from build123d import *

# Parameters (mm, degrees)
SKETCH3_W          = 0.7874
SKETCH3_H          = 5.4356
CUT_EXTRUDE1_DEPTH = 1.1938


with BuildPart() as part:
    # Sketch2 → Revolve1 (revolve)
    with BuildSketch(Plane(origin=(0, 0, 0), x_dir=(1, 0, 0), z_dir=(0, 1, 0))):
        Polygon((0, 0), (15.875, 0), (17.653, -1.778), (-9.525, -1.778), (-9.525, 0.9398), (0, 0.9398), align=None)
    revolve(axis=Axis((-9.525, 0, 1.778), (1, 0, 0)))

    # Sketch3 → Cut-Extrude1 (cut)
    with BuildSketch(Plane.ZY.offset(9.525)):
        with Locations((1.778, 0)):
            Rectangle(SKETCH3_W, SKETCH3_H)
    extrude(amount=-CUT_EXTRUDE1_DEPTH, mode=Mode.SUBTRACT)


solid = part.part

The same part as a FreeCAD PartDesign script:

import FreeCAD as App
import Part
import Sketcher
Q = App.Units.Quantity

doc = App.newDocument("Part")
body = doc.addObject("PartDesign::Body", "Body")

# Sketch on XZ plane
sketch1 = body.newObject("Sketcher::SketchObject", "Sketch")
sketch1.AttachmentSupport = (doc.getObject("XZ_Plane"), [""])
sketch1.MapMode = "FlatFace"
sketch1.addGeometry(Part.LineSegment(App.Vector(15.9, 0, 0), App.Vector(0, 0, 0)), False)
sketch1.addGeometry(Part.LineSegment(App.Vector(0, 0, 0), App.Vector(0, -0.9, 0)), False)
sketch1.addGeometry(Part.LineSegment(App.Vector(0, -0.9, 0), App.Vector(-9.5, -0.9, 0)), False)
sketch1.addGeometry(Part.LineSegment(App.Vector(-9.5, -0.9, 0), App.Vector(-9.5, 1.8, 0)), False)
sketch1.addGeometry(Part.LineSegment(App.Vector(-9.5, 1.8, 0), App.Vector(17.7, 1.8, 0)), False)
sketch1.addGeometry(Part.LineSegment(App.Vector(17.7, 1.8, 0), App.Vector(15.9, 0, 0)), False)
sketch1.addGeometry(Part.LineSegment(App.Vector(-9.5, 1.8, 0), App.Vector(17.7, 1.8, 0)), True)  # axis
sketch1.addConstraint(Sketcher.Constraint("Coincident", 0, 2, 1, 1))
sketch1.addConstraint(Sketcher.Constraint("Coincident", 1, 2, 2, 1))
sketch1.addConstraint(Sketcher.Constraint("Coincident", 2, 2, 3, 1))
sketch1.addConstraint(Sketcher.Constraint("Coincident", 3, 2, 4, 1))
sketch1.addConstraint(Sketcher.Constraint("Coincident", 4, 2, 5, 1))
sketch1.addConstraint(Sketcher.Constraint("Coincident", 5, 2, 0, 1))
sketch1.addConstraint(Sketcher.Constraint("Horizontal", 0))
sketch1.addConstraint(Sketcher.Constraint("Vertical", 1))
sketch1.addConstraint(Sketcher.Constraint("Horizontal", 2))
sketch1.addConstraint(Sketcher.Constraint("Vertical", 3))
sketch1.addConstraint(Sketcher.Constraint("Horizontal", 4))
sketch1.addConstraint(Sketcher.Constraint("Horizontal", 6))
sketch1.addConstraint(Sketcher.Constraint("Coincident", 0, 2, -1, 1))
sketch1.addConstraint(Sketcher.Constraint("Coincident", 6, 1, 3, 2))
sketch1.addConstraint(Sketcher.Constraint("Equal", 4, 6))
sketch1.addConstraint(Sketcher.Constraint("Angle", 5, Q("-135 deg")))
sketch1.addConstraint(Sketcher.Constraint("DistanceX", 2, 2, 5, 2, Q("1 in")))
sketch1.addConstraint(Sketcher.Constraint("DistanceX", 4, 1, 4, 2, Q("1.07 in")))
sketch1.addConstraint(Sketcher.Constraint("DistanceX", 0, 2, 0, 1, Q("0.625 in")))
sketch1.addConstraint(Sketcher.Constraint("DistanceY", 1, 2, 1, 1, Q("0.037 in")))
revolution = body.newObject("PartDesign::Revolution", "Revolution")
revolution.Profile = sketch1
revolution.ReferenceAxis = (sketch1, ["Axis0"])
revolution.Angle = 360

# Sketch on YZ plane
sketch2 = body.newObject("Sketcher::SketchObject", "Sketch001")
sketch2.AttachmentSupport = (doc.getObject("YZ_Plane"), [""])
sketch2.MapMode = "FlatFace"
sketch2.AttachmentOffset = App.Placement(App.Vector(0, 0, -0.375 * 25.4), App.Rotation())
sketch2.addGeometry(Part.LineSegment(App.Vector(2.7, 1.4, 0), App.Vector(-2.7, 1.4, 0)), False)
sketch2.addGeometry(Part.LineSegment(App.Vector(-2.7, 1.4, 0), App.Vector(-2.7, 2.2, 0)), False)
sketch2.addGeometry(Part.LineSegment(App.Vector(-2.7, 2.2, 0), App.Vector(2.7, 2.2, 0)), False)
sketch2.addGeometry(Part.LineSegment(App.Vector(2.7, 2.2, 0), App.Vector(2.7, 1.4, 0)), False)
sketch2.addConstraint(Sketcher.Constraint("Coincident", 0, 2, 1, 1))
sketch2.addConstraint(Sketcher.Constraint("Coincident", 1, 2, 2, 1))
sketch2.addConstraint(Sketcher.Constraint("Coincident", 2, 2, 3, 1))
sketch2.addConstraint(Sketcher.Constraint("Coincident", 3, 2, 0, 1))
sketch2.addConstraint(Sketcher.Constraint("Horizontal", 0))
sketch2.addConstraint(Sketcher.Constraint("Vertical", 1))
sketch2.addConstraint(Sketcher.Constraint("Horizontal", 2))
sketch2.addConstraint(Sketcher.Constraint("Vertical", 3))
sketch2.addConstraint(Sketcher.Constraint("DistanceX", 0, 2, 0, 1, Q("0.214 in")))
sketch2.addConstraint(Sketcher.Constraint("DistanceY", 1, 1, 1, 2, Q("0.031 in")))
sketch2.addConstraint(Sketcher.Constraint("DistanceX", 0, 2, -1, 1, Q("0.107 in")))
sketch2.addConstraint(Sketcher.Constraint("DistanceY", -1, 1, 0, 2, Q("0.0545 in")))
pocket1 = body.newObject("PartDesign::Pocket", "Pocket")
pocket1.Profile = sketch2
pocket1.Length = Q("0.047 in")
pocket1.Reversed = True

doc.recompute()
